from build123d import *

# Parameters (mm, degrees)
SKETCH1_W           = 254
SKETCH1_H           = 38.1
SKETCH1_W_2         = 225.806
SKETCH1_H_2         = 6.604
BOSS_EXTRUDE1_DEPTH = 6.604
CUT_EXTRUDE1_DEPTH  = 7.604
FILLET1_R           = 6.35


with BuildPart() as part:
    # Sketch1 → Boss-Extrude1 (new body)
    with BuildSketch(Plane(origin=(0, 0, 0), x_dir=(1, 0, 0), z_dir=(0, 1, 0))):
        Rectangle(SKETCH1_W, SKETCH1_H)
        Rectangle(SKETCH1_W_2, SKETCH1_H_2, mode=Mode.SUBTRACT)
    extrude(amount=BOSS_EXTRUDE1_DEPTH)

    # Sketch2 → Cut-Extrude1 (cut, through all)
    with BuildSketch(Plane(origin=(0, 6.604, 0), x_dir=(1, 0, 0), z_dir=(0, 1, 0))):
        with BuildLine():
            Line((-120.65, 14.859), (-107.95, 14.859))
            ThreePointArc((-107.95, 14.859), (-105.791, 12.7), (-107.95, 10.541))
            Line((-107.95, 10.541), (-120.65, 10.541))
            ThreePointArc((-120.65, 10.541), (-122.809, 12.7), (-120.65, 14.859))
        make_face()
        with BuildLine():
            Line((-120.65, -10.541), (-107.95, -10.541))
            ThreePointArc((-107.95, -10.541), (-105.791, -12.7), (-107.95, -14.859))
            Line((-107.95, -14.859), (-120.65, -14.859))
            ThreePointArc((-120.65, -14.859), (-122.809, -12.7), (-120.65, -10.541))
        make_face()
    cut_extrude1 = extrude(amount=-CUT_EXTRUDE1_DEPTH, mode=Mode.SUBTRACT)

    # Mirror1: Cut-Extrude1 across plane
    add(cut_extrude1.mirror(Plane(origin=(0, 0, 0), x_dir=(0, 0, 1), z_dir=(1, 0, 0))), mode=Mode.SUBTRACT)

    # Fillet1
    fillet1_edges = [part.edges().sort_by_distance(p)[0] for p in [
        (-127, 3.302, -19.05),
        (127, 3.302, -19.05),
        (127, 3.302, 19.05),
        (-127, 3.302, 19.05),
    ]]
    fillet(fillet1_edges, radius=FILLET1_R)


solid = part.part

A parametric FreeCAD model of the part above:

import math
import FreeCAD as App
import Part
import Sketcher

V = App.Vector
Q = App.Units.Quantity


def edges_at(feature, points):
    """Names of the edges that pass closest to the given points."""
    edges = feature.Shape.Edges
    near = lambda p: min(range(len(edges)), key=lambda i: edges[i].distToShape(Part.Vertex(*p))[0])
    return sorted({f"Edge{near(p) + 1}" for p in points})

doc = App.newDocument("Part")
body = doc.addObject("PartDesign::Body", "Body")

# Sketch on XZ plane
sketch1 = body.newObject("Sketcher::SketchObject", "Sketch")
sketch1.AttachmentSupport = (doc.getObject("XZ_Plane"), [""])
sketch1.MapMode = "FlatFace"
sketch1.addGeometry([
    Part.LineSegment(V(-127, -19.05, 0), V(-127, 19.05, 0)),  # 0
    Part.LineSegment(V(-127, 19.05, 0), V(127, 19.05, 0)),  # 1
    Part.LineSegment(V(127, 19.05, 0), V(127, -19.05, 0)),  # 2
    Part.LineSegment(V(127, -19.05, 0), V(-127, -19.05, 0)),  # 3
    Part.LineSegment(V(112.903, 3.302, 0), V(-112.903, 3.302, 0)),  # 4
    Part.LineSegment(V(-112.903, 3.302, 0), V(-112.903, -3.302, 0)),  # 5
    Part.LineSegment(V(-112.903, -3.302, 0), V(112.903, -3.302, 0)),  # 6
    Part.LineSegment(V(112.903, -3.302, 0), V(112.903, 3.302, 0)),  # 7
], False)
sketch1.addConstraint([
    Sketcher.Constraint("Coincident", 0, 2, 1, 1),
    Sketcher.Constraint("Coincident", 1, 2, 2, 1),
    Sketcher.Constraint("Coincident", 2, 2, 3, 1),
    Sketcher.Constraint("Coincident", 3, 2, 0, 1),
    Sketcher.Constraint("Coincident", 4, 2, 5, 1),
    Sketcher.Constraint("Coincident", 5, 2, 6, 1),
    Sketcher.Constraint("Coincident", 6, 2, 7, 1),
    Sketcher.Constraint("Coincident", 7, 2, 4, 1),
    Sketcher.Constraint("Vertical", 0),
    Sketcher.Constraint("Horizontal", 1),
    Sketcher.Constraint("Vertical", 2),
    Sketcher.Constraint("Horizontal", 3),
    Sketcher.Constraint("Horizontal", 4),
    Sketcher.Constraint("Vertical", 5),
    Sketcher.Constraint("Horizontal", 6),
    Sketcher.Constraint("Vertical", 7),
    Sketcher.Constraint("Symmetric", 0, 2, 2, 2, -1, 1),
    Sketcher.Constraint("Symmetric", 4, 2, 6, 2, -1, 1),
    Sketcher.Constraint("DistanceX", 1, 1, 1, 2, Q("10 in")),
    Sketcher.Constraint("DistanceY", 0, 1, 0, 2, Q("1.5 in")),
    Sketcher.Constraint("DistanceX", 4, 2, 4, 1, Q("8.89 in")),
    Sketcher.Constraint("DistanceY", 5, 2, 5, 1, Q("0.26 in")),
])
pad1 = body.newObject("PartDesign::Pad", "Pad")
pad1.Profile = sketch1
pad1.Length = Q("0.26 in")
pad1.Reversed = True

# Sketch on XZ plane
sketch2 = body.newObject("Sketcher::SketchObject", "Sketch001")
sketch2.AttachmentSupport = (doc.getObject("XZ_Plane"), [""])
sketch2.MapMode = "FlatFace"
sketch2.AttachmentOffset = App.Placement(V(0, 0, -0.26 * 25.4), App.Rotation())
sketch2.addGeometry([
    Part.LineSegment(V(-107.95, -14.859, 0), V(-120.65, -14.859, 0)),  # 0
    Part.ArcOfCircle(Part.Circle(V(-120.65, -12.7, 0), V(0, 0, 1), 2.159), math.radians(90), math.radians(270)),  # 1
    Part.LineSegment(V(-120.65, -10.541, 0), V(-107.95, -10.541, 0)),  # 2
    Part.ArcOfCircle(Part.Circle(V(-107.95, -12.7, 0), V(0, 0, 1), 2.159), math.radians(-90), math.radians(90)),  # 3
    Part.LineSegment(V(-107.95, 10.541, 0), V(-120.65, 10.541, 0)),  # 4
    Part.ArcOfCircle(Part.Circle(V(-120.65, 12.7, 0), V(0, 0, 1), 2.159), math.radians(90), math.radians(270)),  # 5
    Part.LineSegment(V(-120.65, 14.859, 0), V(-107.95, 14.859, 0)),  # 6
    Part.ArcOfCircle(Part.Circle(V(-107.95, 12.7, 0), V(0, 0, 1), 2.159), math.radians(-90), math.radians(90)),  # 7
], False)
sketch2.addConstraint([
    Sketcher.Constraint("Tangent", 0, 2, 1, 2),
    Sketcher.Constraint("Tangent", 1, 1, 2, 1),
    Sketcher.Constraint("Tangent", 2, 2, 3, 2),
    Sketcher.Constraint("Tangent", 3, 1, 0, 1),
    Sketcher.Constraint("Tangent", 4, 2, 5, 2),
    Sketcher.Constraint("Tangent", 5, 1, 6, 1),
    Sketcher.Constraint("Tangent", 6, 2, 7, 2),
    Sketcher.Constraint("Tangent", 7, 1, 4, 1),
    Sketcher.Constraint("Horizontal", 0),
    Sketcher.Constraint("Horizontal", 2),
    Sketcher.Constraint("Horizontal", 4),
    Sketcher.Constraint("Horizontal", 6),
    Sketcher.Constraint("Equal", 3, 5),
    Sketcher.Constraint("Symmetric", 1, 3, 5, 3, -1),
    Sketcher.Constraint("Vertical", 3, 3, 7, 3),
    Sketcher.Constraint("DistanceX", 0, 2, 0, 1, Q("0.5 in")),
    Sketcher.Constraint("Radius", 1, Q("0.085 in")),
    Sketcher.Constraint("DistanceY", 1, 3, 5, 3, Q("1 in")),
    Sketcher.Constraint("DistanceX", 1, 3, -1, 1, Q("4.75 in")),
])
pocket1 = body.newObject("PartDesign::Pocket", "Pocket")
pocket1.Profile = sketch2
pocket1.Type = "ThroughAll"
pocket1.Reversed = True
doc.recompute()

mirrored = body.newObject("PartDesign::Mirrored", "Mirrored")
mirrored.Originals = [pocket1]
mirrored.MirrorPlane = (doc.getObject("YZ_Plane"), [""])
body.Tip = mirrored
doc.recompute()

fillet = body.newObject("PartDesign::Fillet", "Fillet")
fillet.Base = (mirrored, edges_at(mirrored, [
    (-127, 3.302, -19.05),
    (127, 3.302, -19.05),
    (127, 3.302, 19.05),
    (-127, 3.302, 19.05),
]))
fillet.Radius = Q("0.25 in")

doc.recompute()
